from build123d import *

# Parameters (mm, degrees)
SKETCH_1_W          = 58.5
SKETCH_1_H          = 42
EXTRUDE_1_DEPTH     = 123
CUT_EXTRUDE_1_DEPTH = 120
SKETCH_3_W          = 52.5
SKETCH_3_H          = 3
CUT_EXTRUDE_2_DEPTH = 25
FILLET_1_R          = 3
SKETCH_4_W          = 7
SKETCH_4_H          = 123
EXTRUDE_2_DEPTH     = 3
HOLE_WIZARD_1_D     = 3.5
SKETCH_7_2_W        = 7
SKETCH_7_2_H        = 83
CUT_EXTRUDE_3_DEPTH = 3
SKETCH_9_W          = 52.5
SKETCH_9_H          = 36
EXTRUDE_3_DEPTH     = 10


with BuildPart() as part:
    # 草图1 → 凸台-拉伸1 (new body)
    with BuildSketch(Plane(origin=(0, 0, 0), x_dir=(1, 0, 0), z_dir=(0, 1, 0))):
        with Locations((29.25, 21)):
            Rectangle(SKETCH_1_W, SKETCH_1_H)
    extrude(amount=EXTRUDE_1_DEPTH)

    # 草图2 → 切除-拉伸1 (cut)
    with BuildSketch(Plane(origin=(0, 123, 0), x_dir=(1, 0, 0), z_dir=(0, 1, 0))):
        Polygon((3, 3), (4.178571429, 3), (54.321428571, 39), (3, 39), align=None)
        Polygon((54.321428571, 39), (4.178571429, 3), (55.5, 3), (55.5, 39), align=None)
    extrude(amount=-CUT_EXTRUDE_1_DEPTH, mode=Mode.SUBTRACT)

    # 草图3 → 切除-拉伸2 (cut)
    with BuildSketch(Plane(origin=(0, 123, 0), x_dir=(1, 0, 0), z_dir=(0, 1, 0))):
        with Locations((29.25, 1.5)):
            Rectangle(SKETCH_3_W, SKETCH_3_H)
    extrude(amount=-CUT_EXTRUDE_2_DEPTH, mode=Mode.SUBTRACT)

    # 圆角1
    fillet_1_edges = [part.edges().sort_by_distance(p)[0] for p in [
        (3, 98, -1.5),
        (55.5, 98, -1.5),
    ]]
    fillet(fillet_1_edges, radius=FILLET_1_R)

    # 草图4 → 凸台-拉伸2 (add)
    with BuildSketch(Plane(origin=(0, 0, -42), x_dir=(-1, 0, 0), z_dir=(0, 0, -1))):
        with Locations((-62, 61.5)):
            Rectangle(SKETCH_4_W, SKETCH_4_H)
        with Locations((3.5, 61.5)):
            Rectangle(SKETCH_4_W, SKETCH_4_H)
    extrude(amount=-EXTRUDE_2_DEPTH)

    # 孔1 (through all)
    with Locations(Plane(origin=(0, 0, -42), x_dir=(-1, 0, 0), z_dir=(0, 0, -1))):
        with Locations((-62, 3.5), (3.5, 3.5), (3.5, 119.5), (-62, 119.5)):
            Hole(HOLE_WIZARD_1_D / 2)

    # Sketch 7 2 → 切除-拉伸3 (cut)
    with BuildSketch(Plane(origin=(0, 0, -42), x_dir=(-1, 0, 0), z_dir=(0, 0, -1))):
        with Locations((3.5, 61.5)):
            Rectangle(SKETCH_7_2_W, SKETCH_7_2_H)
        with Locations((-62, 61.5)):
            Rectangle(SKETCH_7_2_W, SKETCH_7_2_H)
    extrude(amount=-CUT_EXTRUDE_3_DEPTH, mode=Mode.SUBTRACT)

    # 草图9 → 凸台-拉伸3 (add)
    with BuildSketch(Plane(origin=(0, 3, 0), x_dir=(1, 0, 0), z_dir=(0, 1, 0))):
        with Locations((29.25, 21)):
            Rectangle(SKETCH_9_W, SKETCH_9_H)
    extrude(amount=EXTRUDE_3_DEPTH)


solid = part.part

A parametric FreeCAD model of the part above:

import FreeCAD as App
import Part
import Sketcher


def edges_at(feature, points):
    """Names of the edges that pass closest to the given points."""
    edges = feature.Shape.Edges
    near = lambda p: min(range(len(edges)), key=lambda i: edges[i].distToShape(Part.Vertex(*p))[0])
    return sorted({f"Edge{near(p) + 1}" for p in points})

doc = App.newDocument("Part")
body = doc.addObject("PartDesign::Body", "Body")

# Sketch on XZ plane
sketch1 = body.newObject("Sketcher::SketchObject", "Sketch")
sketch1.AttachmentSupport = (doc.getObject("XZ_Plane"), [""])
sketch1.MapMode = "FlatFace"
sketch1.addGeometry([
    Part.LineSegment(App.Vector(0, -42, 0), App.Vector(0, 0, 0)),
    Part.LineSegment(App.Vector(0, 0, 0), App.Vector(58, 0, 0)),
    Part.LineSegment(App.Vector(58, 0, 0), App.Vector(58, -42, 0)),
    Part.LineSegment(App.Vector(58, -42, 0), App.Vector(0, -42, 0)),
], False)
sketch1.addConstraint([
    Sketcher.Constraint("Coincident", 0, 2, 1, 1),
    Sketcher.Constraint("Coincident", 1, 2, 2, 1),
    Sketcher.Constraint("Coincident", 2, 2, 3, 1),
    Sketcher.Constraint("Coincident", 3, 2, 0, 1),
    Sketcher.Constraint("Vertical", 0),
    Sketcher.Constraint("Horizontal", 1),
    Sketcher.Constraint("Vertical", 2),
    Sketcher.Constraint("Horizontal", 3),
    Sketcher.Constraint("Coincident", 0, 2, -1, 1),
    Sketcher.Constraint("DistanceY", 0, 1, 0, 2, 42.0),
    Sketcher.Constraint("DistanceX", 1, 1, 1, 2, 58.5),
])
pad1 = body.newObject("PartDesign::Pad", "Pad")
pad1.Profile = sketch1
pad1.Length = 123
pad1.Reversed = True

# Sketch on XZ plane
sketch2 = body.newObject("Sketcher::SketchObject", "Sketch001")
sketch2.AttachmentSupport = (doc.getObject("XZ_Plane"), [""])
sketch2.MapMode = "FlatFace"
sketch2.AttachmentOffset = App.Placement(App.Vector(0, 0, -123), App.Rotation())
sketch2.addGeometry([
    Part.LineSegment(App.Vector(3, -3, 0), App.Vector(56, -3, 0)),
    Part.LineSegment(App.Vector(56, -3, 0), App.Vector(56, -39, 0)),
    Part.LineSegment(App.Vector(56, -39, 0), App.Vector(3, -39, 0)),
    Part.LineSegment(App.Vector(3, -39, 0), App.Vector(3, -3, 0)),
], False)
sketch2.addConstraint([
    Sketcher.Constraint("Coincident", 0, 2, 1, 1),
    Sketcher.Constraint("Coincident", 1, 2, 2, 1),
    Sketcher.Constraint("Coincident", 2, 2, 3, 1),
    Sketcher.Constraint("Coincident", 3, 2, 0, 1),
    Sketcher.Constraint("Horizontal", 0),
    Sketcher.Constraint("Vertical", 1),
    Sketcher.Constraint("Horizontal", 2),
    Sketcher.Constraint("Vertical", 3),
    Sketcher.Constraint("DistanceY", 1, 2, 1, 1, 36.0),
    Sketcher.Constraint("DistanceX", 0, 1, 0, 2, 52.5),
    Sketcher.Constraint("DistanceY", 0, 2, -1, 1, 3.0),
    Sketcher.Constraint("DistanceX", -1, 1, 2, 2, 3.0),
])
pocket1 = body.newObject("PartDesign::Pocket", "Pocket")
pocket1.Profile = sketch2
pocket1.Length = 120
pocket1.Reversed = True

# Sketch on XZ plane
sketch3 = body.newObject("Sketcher::SketchObject", "Sketch002")
sketch3.AttachmentSupport = (doc.getObject("XZ_Plane"), [""])
sketch3.MapMode = "FlatFace"
sketch3.AttachmentOffset = App.Placement(App.Vector(0, 0, -123), App.Rotation())
sketch3.addGeometry([
    Part.LineSegment(App.Vector(3, -3, 0), App.Vector(3, 0, 0)),
    Part.LineSegment(App.Vector(3, 0, 0), App.Vector(55.5, 0, 0)),
    Part.LineSegment(App.Vector(55.5, 0, 0), App.Vector(55.5, -3, 0)),
    Part.LineSegment(App.Vector(55.5, -3, 0), App.Vector(3, -3, 0)),
], False)
sketch3.addConstraint([
    Sketcher.Constraint("Coincident", 0, 2, 1, 1),
    Sketcher.Constraint("Coincident", 1, 2, 2, 1),
    Sketcher.Constraint("Coincident", 2, 2, 3, 1),
    Sketcher.Constraint("Coincident", 3, 2, 0, 1),
    Sketcher.Constraint("Vertical", 0),
    Sketcher.Constraint("Horizontal", 1),
    Sketcher.Constraint("Vertical", 2),
    Sketcher.Constraint("Horizontal", 3),
    Sketcher.Constraint("PointOnObject", 0, 2, -1),
    Sketcher.Constraint("DistanceY", 0, 1, 0, 2, 3.0),
    Sketcher.Constraint("DistanceX", 1, 1, 1, 2, 52.5),
    Sketcher.Constraint("DistanceX", -1, 1, 0, 2, 3.0),
])
pocket2 = body.newObject("PartDesign::Pocket", "Pocket001")
pocket2.Profile = sketch3
pocket2.Length = 25
pocket2.Reversed = True
doc.recompute()

fillet = body.newObject("PartDesign::Fillet", "Fillet")
fillet.Base = (pocket2, edges_at(pocket2, [(3, 98, -1.5), (55.5, 98, -1.5)]))
fillet.Radius = 3

# Sketch on XY plane
sketch4 = body.newObject("Sketcher::SketchObject", "Sketch003")
sketch4.AttachmentSupport = (doc.getObject("XY_Plane"), [""])
sketch4.MapMode = "FlatFace"
sketch4.AttachmentOffset = App.Placement(App.Vector(0, 0, -42), App.Rotation())
sketch4.addGeometry([
    Part.LineSegment(App.Vector(66, 123, 0), App.Vector(66, 0, 0)),  # 0
    Part.LineSegment(App.Vector(66, 0, 0), App.Vector(58, 0, 0)),  # 1
    Part.LineSegment(App.Vector(58, 0, 0), App.Vector(58, 123, 0)),  # 2
    Part.LineSegment(App.Vector(58, 123, 0), App.Vector(66, 123, 0)),  # 3
    Part.LineSegment(App.Vector(0, 123, 0), App.Vector(0, 0, 0)),  # 4
    Part.LineSegment(App.Vector(0, 0, 0), App.Vector(-7, 0, 0)),  # 5
    Part.LineSegment(App.Vector(-7, 0, 0), App.Vector(-7, 123, 0)),  # 6
    Part.LineSegment(App.Vector(-7, 123, 0), App.Vector(0, 123, 0)),  # 7
], False)
sketch4.addConstraint([
    Sketcher.Constraint("Coincident", 0, 2, 1, 1),
    Sketcher.Constraint("Coincident", 1, 2, 2, 1),
    Sketcher.Constraint("Coincident", 2, 2, 3, 1),
    Sketcher.Constraint("Coincident", 3, 2, 0, 1),
    Sketcher.Constraint("Coincident", 4, 2, 5, 1),
    Sketcher.Constraint("Coincident", 5, 2, 6, 1),
    Sketcher.Constraint("Coincident", 6, 2, 7, 1),
    Sketcher.Constraint("Coincident", 7, 2, 4, 1),
    Sketcher.Constraint("Vertical", 0),
    Sketcher.Constraint("Horizontal", 1),
    Sketcher.Constraint("Vertical", 2),
    Sketcher.Constraint("Horizontal", 3),
    Sketcher.Constraint("Vertical", 4),
    Sketcher.Constraint("Horizontal", 5),
    Sketcher.Constraint("Vertical", 6),
    Sketcher.Constraint("Horizontal", 7),
    Sketcher.Constraint("Coincident", 4, 2, -1, 1),
    Sketcher.Constraint("PointOnObject", 0, 2, -1),
    Sketcher.Constraint("Horizontal", 3, 2, 6, 2),
    Sketcher.Constraint("Equal", 3, 5),
    Sketcher.Constraint("DistanceX", 1, 2, 1, 1, 7.0),
    Sketcher.Constraint("DistanceY", 0, 2, 0, 1, 123.0),
    Sketcher.Constraint("DistanceX", -1, 1, 0, 2, 65.5),
])
pad2 = body.newObject("PartDesign::Pad", "Pad001")
pad2.Profile = sketch4
pad2.Length = 3

# Sketch on XY plane
sketch5 = body.newObject("Sketcher::SketchObject", "Sketch004")
sketch5.AttachmentSupport = (doc.getObject("XY_Plane"), [""])
sketch5.MapMode = "FlatFace"
sketch5.AttachmentOffset = App.Placement(App.Vector(0, 0, -42), App.Rotation())
sketch5.addGeometry([
    Part.Circle(App.Vector(62, 3.5, 0), App.Vector(0, 0, 1), 1.8),
    Part.Circle(App.Vector(-3.5, 3.5, 0), App.Vector(0, 0, 1), 1.8),
    Part.Circle(App.Vector(-3.5, 119.5, 0), App.Vector(0, 0, 1), 1.8),
    Part.Circle(App.Vector(62, 119.5, 0), App.Vector(0, 0, 1), 1.8),
], False)
sketch5.addConstraint([
    Sketcher.Constraint("Equal", 0, 1),
    Sketcher.Constraint("Equal", 1, 2),
    Sketcher.Constraint("Equal", 2, 3),
    Sketcher.Constraint("Horizontal", 0, 3, 1, 3),
    Sketcher.Constraint("Horizontal", 2, 3, 3, 3),
    Sketcher.Constraint("Vertical", 1, 3, 2, 3),
    Sketcher.Constraint("Vertical", 0, 3, 3, 3),
    Sketcher.Constraint("Diameter", 0, 3.5),
    Sketcher.Constraint("DistanceX", -1, 1, 0, 3, 62.0),
    Sketcher.Constraint("DistanceY", 1, 3, 2, 3, 116.0),
    Sketcher.Constraint("DistanceY", -1, 1, 0, 3, 3.5),
    Sketcher.Constraint("DistanceX", 1, 3, -1, 1, 3.5),
])
doc.recompute()
hole = body.newObject("PartDesign::Hole", "Hole")
hole.Profile = sketch5
hole.ThreadType = "None"
hole.Diameter = 3.5
hole.DepthType = "ThroughAll"
hole.Reversed = True

# Sketch on XY plane
sketch6 = body.newObject("Sketcher::SketchObject", "Sketch005")
sketch6.AttachmentSupport = (doc.getObject("XY_Plane"), [""])
sketch6.MapMode = "FlatFace"
sketch6.AttachmentOffset = App.Placement(App.Vector(0, 0, -42), App.Rotation())
sketch6.addGeometry([
    Part.LineSegment(App.Vector(0, 103, 0), App.Vector(0, 20, 0)),  # 0
    Part.LineSegment(App.Vector(0, 20, 0), App.Vector(-7, 20, 0)),  # 1
    Part.LineSegment(App.Vector(-7, 20, 0), App.Vector(-7, 103, 0)),  # 2
    Part.LineSegment(App.Vector(-7, 103, 0), App.Vector(0, 103, 0)),  # 3
    Part.LineSegment(App.Vector(66, 103, 0), App.Vector(66, 20, 0)),  # 4
    Part.LineSegment(App.Vector(66, 20, 0), App.Vector(58, 20, 0)),  # 5
    Part.LineSegment(App.Vector(58, 20, 0), App.Vector(58, 103, 0)),  # 6
    Part.LineSegment(App.Vector(58, 103, 0), App.Vector(66, 103, 0)),  # 7
], False)
sketch6.addConstraint([
    Sketcher.Constraint("Coincident", 0, 2, 1, 1),
    Sketcher.Constraint("Coincident", 1, 2, 2, 1),
    Sketcher.Constraint("Coincident", 2, 2, 3, 1),
    Sketcher.Constraint("Coincident", 3, 2, 0, 1),
    Sketcher.Constraint("Coincident", 4, 2, 5, 1),
    Sketcher.Constraint("Coincident", 5, 2, 6, 1),
    Sketcher.Constraint("Coincident", 6, 2, 7, 1),
    Sketcher.Constraint("Coincident", 7, 2, 4, 1),
    Sketcher.Constraint("Vertical", 0),
    Sketcher.Constraint("Horizontal", 1),
    Sketcher.Constraint("Vertical", 2),
    Sketcher.Constraint("Horizontal", 3),
    Sketcher.Constraint("Vertical", 4),
    Sketcher.Constraint("Horizontal", 5),
    Sketcher.Constraint("Vertical", 6),
    Sketcher.Constraint("Horizontal", 7),
    Sketcher.Constraint("PointOnObject", 0, 2, -2),
    Sketcher.Constraint("Horizontal", 1, 2, 4, 2),
    Sketcher.Constraint("Horizontal", 3, 2, 6, 2),
    Sketcher.Constraint("Equal", 3, 5),
    Sketcher.Constraint("DistanceX", 1, 2, 1, 1, 7.0),
    Sketcher.Constraint("DistanceY", 0, 2, 0, 1, 83.0),
    Sketcher.Constraint("DistanceY", -1, 1, 0, 2, 20.0),
    Sketcher.Constraint("DistanceX", -1, 1, 4, 2, 65.5),
])
pocket3 = body.newObject("PartDesign::Pocket", "Pocket002")
pocket3.Profile = sketch6
pocket3.Length = 3
pocket3.Reversed = True

# Sketch on XZ plane
sketch7 = body.newObject("Sketcher::SketchObject", "Sketch006")
sketch7.AttachmentSupport = (doc.getObject("XZ_Plane"), [""])
sketch7.MapMode = "FlatFace"
sketch7.AttachmentOffset = App.Placement(App.Vector(0, 0, -3), App.Rotation())
sketch7.addGeometry([
    Part.LineSegment(App.Vector(3, -39, 0), App.Vector(3, -3, 0)),
    Part.LineSegment(App.Vector(3, -3, 0), App.Vector(56, -3, 0)),
    Part.LineSegment(App.Vector(56, -3, 0), App.Vector(56, -39, 0)),
    Part.LineSegment(App.Vector(56, -39, 0), App.Vector(3, -39, 0)),
], False)
sketch7.addConstraint([
    Sketcher.Constraint("Coincident", 0, 2, 1, 1),
    Sketcher.Constraint("Coincident", 1, 2, 2, 1),
    Sketcher.Constraint("Coincident", 2, 2, 3, 1),
    Sketcher.Constraint("Coincident", 3, 2, 0, 1),
    Sketcher.Constraint("Vertical", 0),
    Sketcher.Constraint("Horizontal", 1),
    Sketcher.Constraint("Vertical", 2),
    Sketcher.Constraint("Horizontal", 3),
    Sketcher.Constraint("DistanceY", 0, 1, 0, 2, 36.0),
    Sketcher.Constraint("DistanceX", 1, 1, 1, 2, 52.5),
    Sketcher.Constraint("DistanceX", -1, 1, 0, 2, 3.0),
    Sketcher.Constraint("DistanceY", 0, 2, -1, 1, 3.0),
])
pad3 = body.newObject("PartDesign::Pad", "Pad002")
pad3.Profile = sketch7
pad3.Length = 10
pad3.Reversed = True

doc.recompute()
